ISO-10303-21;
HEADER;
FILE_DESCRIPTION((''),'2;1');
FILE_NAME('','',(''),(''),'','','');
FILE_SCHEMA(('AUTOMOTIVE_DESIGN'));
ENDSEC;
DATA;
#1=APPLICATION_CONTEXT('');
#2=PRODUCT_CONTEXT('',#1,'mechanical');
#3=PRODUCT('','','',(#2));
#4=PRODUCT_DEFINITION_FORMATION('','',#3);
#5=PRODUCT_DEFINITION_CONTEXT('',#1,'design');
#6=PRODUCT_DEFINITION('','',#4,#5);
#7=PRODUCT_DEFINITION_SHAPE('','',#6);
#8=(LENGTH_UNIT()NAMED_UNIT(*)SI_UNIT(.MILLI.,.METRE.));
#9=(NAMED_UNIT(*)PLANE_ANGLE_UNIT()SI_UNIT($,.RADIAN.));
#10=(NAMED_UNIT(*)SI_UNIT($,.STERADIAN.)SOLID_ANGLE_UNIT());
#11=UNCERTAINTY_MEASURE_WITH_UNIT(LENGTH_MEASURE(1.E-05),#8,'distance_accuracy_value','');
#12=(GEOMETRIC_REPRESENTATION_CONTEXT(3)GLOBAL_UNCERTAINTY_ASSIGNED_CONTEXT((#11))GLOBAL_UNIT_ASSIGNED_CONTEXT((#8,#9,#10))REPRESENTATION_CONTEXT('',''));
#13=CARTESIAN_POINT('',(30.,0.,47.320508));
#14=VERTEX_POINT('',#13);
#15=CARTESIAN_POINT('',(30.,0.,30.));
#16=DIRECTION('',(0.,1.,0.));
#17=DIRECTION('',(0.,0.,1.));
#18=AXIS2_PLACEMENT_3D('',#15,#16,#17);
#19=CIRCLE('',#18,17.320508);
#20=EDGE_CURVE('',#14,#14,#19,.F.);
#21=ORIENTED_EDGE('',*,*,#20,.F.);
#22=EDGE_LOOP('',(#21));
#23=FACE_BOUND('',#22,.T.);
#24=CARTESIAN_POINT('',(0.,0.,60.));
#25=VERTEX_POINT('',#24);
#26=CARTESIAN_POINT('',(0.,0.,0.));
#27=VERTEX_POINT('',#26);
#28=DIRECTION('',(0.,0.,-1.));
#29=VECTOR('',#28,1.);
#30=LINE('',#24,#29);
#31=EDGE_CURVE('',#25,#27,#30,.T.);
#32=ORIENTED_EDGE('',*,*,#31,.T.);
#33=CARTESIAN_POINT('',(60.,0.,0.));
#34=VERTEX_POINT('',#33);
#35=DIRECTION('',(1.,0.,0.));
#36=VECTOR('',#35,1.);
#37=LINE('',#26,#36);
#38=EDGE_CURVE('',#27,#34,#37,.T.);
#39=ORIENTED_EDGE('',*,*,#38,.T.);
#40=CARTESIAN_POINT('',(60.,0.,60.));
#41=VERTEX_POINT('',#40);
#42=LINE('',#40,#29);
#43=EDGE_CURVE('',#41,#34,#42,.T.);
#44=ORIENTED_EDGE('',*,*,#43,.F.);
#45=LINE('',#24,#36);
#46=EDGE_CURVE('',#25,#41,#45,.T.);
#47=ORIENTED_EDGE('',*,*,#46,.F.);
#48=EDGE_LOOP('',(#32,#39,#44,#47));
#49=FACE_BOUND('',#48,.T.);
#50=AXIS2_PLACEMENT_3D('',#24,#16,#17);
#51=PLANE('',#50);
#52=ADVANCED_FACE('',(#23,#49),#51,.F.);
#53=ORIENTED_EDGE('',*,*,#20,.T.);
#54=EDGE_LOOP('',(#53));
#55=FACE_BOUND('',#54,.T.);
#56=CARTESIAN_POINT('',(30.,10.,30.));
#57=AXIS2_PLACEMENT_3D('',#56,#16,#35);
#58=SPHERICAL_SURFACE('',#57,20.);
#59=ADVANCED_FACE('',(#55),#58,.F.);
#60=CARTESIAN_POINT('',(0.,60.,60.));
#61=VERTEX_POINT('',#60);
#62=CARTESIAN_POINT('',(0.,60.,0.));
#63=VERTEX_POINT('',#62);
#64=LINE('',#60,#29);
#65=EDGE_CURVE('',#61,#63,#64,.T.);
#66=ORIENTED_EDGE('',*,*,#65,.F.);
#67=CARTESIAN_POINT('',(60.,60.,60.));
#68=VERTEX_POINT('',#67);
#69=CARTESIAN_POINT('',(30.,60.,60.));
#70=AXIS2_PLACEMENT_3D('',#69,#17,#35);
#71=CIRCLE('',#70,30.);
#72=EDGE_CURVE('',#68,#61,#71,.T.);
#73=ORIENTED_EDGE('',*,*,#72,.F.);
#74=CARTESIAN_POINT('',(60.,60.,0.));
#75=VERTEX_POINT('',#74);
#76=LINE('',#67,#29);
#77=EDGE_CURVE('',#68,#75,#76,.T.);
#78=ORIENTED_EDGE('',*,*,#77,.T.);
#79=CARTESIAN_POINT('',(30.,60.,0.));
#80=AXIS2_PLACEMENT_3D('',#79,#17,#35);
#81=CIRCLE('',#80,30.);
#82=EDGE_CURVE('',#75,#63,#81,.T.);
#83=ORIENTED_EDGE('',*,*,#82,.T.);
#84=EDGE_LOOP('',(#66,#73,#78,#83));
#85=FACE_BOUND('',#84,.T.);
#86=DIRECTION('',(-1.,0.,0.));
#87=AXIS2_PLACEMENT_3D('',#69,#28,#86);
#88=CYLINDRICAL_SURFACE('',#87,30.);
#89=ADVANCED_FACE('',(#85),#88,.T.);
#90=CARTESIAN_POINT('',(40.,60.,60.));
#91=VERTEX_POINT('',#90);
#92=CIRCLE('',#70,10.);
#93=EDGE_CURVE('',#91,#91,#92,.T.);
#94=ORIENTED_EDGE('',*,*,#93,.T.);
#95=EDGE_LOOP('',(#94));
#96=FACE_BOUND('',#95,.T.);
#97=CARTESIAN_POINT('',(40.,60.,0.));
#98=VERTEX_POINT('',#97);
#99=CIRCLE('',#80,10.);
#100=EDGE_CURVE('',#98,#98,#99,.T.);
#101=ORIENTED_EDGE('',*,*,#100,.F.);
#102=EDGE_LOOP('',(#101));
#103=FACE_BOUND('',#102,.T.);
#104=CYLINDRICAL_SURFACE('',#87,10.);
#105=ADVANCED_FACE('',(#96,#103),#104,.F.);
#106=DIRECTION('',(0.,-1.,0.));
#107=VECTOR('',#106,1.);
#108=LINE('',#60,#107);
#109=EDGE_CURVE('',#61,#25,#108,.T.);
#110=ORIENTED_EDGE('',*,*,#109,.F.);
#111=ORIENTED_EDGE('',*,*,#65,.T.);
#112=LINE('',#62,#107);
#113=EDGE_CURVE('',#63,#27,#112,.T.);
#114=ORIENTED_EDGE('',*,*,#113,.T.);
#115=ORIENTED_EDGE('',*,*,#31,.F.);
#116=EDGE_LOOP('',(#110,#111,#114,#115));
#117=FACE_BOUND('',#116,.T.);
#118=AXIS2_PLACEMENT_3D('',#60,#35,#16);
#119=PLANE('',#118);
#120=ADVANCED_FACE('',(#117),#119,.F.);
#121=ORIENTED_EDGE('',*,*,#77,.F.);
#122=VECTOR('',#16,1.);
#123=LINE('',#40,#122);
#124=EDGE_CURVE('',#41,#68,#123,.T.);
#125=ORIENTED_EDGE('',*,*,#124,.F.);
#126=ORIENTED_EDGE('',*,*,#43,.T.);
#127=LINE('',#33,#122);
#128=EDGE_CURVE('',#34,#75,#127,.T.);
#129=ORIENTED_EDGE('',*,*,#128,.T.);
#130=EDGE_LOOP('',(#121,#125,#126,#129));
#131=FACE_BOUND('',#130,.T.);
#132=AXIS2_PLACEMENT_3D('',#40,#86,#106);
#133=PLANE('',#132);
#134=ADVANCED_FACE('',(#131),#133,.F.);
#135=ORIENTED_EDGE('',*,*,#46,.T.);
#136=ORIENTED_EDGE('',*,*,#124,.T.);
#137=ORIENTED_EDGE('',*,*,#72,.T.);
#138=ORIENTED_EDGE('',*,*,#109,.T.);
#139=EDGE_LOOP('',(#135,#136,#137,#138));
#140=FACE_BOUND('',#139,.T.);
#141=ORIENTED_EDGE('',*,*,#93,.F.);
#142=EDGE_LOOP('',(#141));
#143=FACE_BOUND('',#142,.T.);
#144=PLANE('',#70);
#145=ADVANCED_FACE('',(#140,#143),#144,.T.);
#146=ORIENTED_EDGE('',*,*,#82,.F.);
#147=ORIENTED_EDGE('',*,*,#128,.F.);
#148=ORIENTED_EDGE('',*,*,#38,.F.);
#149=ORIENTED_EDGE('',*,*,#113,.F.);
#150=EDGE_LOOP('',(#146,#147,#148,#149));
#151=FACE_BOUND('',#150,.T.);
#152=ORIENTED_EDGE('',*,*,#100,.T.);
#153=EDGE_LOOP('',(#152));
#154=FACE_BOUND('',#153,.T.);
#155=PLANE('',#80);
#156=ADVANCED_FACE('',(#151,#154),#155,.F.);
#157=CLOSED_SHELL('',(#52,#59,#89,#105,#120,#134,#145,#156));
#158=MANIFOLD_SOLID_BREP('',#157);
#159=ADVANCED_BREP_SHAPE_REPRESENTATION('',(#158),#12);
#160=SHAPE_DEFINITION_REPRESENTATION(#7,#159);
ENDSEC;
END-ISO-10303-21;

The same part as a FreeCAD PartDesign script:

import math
import FreeCAD as App
import Part
import Sketcher

doc = App.newDocument("Part")
body = doc.addObject("PartDesign::Body", "Body")

sketch1 = doc.addObject("Sketcher::SketchObject", "Sketch")
body.addObject(sketch1)
sketch1.AttachmentSupport = (doc.XY_Plane, [""])
sketch1.MapMode = "FlatFace"
sketch1.addGeometry([
    Part.LineSegment(App.Vector(0, 0, 0), App.Vector(60, 0, 0)),
    Part.LineSegment(App.Vector(60, 0, 0), App.Vector(60, 60, 0)),
    Part.ArcOfCircle(Part.Circle(App.Vector(30, 60, 0), App.Vector(0, 0, 1), 30), math.radians(0), math.radians(180)),
    Part.LineSegment(App.Vector(0, 60, 0), App.Vector(0, 0, 0)),
    Part.Circle(App.Vector(30, 60, 0), App.Vector(0, 0, 1), 10),
], False)
sketch1.addConstraint([
    Sketcher.Constraint("Coincident", 0, 2, 1, 1),
    Sketcher.Constraint("Tangent", 1, 2, 2, 1),
    Sketcher.Constraint("Tangent", 2, 2, 3, 1),
    Sketcher.Constraint("Coincident", 3, 2, 0, 1),
    Sketcher.Constraint("Horizontal", 0),
    Sketcher.Constraint("Vertical", 1),
    Sketcher.Constraint("Vertical", 3),
    Sketcher.Constraint("Coincident", 3, 2, -1, 1),
    Sketcher.Constraint("Coincident", 4, 3, 2, 3),
    Sketcher.Constraint("Equal", 0, 1),
    Sketcher.Constraint("Diameter", 4, 20.0),
    Sketcher.Constraint("Radius", 2, 30.0),
])
pad1 = doc.addObject("PartDesign::Pad", "Pad")
body.addObject(pad1)
pad1.Profile = sketch1
pad1.Length = 60

sketch2 = doc.addObject("Sketcher::SketchObject", "Sketch001")
body.addObject(sketch2)
sketch2.AttachmentSupport = (doc.XY_Plane, [""])
sketch2.MapMode = "FlatFace"
sketch2.AttachmentOffset = App.Placement(App.Vector(0, 0, 30), App.Rotation())
sketch2.addGeometry([
    Part.LineSegment(App.Vector(30, 30, 0), App.Vector(30, -10, 0)),
    Part.ArcOfCircle(Part.Circle(App.Vector(30, 10, 0), App.Vector(0, 0, 1), 20), math.radians(-90), math.radians(90)),
], False)
sketch2.addGeometry(Part.LineSegment(App.Vector(30, 30, 0), App.Vector(30, -10, 0)), True)
sketch2.addConstraint([
    Sketcher.Constraint("Coincident", 0, 1, 1, 2),
    Sketcher.Constraint("Coincident", 1, 1, 0, 2),
    Sketcher.Constraint("Vertical", 0),
    Sketcher.Constraint("Vertical", 2),
    Sketcher.Constraint("Coincident", 2, 1, 0, 1),
    Sketcher.Constraint("Vertical", 1, 3, 0, 1),
    Sketcher.Constraint("Equal", 0, 2),
    Sketcher.Constraint("Radius", 1, 20.0),
    Sketcher.Constraint("DistanceX", -1, 1, 1, 3, 30.0),
    Sketcher.Constraint("DistanceY", -1, 1, 1, 3, 10.0),
])
groove = doc.addObject("PartDesign::Groove", "Groove")
body.addObject(groove)
groove.Profile = sketch2
groove.ReferenceAxis = (sketch2, ["Axis0"])
groove.Angle = 360

doc.recompute()
